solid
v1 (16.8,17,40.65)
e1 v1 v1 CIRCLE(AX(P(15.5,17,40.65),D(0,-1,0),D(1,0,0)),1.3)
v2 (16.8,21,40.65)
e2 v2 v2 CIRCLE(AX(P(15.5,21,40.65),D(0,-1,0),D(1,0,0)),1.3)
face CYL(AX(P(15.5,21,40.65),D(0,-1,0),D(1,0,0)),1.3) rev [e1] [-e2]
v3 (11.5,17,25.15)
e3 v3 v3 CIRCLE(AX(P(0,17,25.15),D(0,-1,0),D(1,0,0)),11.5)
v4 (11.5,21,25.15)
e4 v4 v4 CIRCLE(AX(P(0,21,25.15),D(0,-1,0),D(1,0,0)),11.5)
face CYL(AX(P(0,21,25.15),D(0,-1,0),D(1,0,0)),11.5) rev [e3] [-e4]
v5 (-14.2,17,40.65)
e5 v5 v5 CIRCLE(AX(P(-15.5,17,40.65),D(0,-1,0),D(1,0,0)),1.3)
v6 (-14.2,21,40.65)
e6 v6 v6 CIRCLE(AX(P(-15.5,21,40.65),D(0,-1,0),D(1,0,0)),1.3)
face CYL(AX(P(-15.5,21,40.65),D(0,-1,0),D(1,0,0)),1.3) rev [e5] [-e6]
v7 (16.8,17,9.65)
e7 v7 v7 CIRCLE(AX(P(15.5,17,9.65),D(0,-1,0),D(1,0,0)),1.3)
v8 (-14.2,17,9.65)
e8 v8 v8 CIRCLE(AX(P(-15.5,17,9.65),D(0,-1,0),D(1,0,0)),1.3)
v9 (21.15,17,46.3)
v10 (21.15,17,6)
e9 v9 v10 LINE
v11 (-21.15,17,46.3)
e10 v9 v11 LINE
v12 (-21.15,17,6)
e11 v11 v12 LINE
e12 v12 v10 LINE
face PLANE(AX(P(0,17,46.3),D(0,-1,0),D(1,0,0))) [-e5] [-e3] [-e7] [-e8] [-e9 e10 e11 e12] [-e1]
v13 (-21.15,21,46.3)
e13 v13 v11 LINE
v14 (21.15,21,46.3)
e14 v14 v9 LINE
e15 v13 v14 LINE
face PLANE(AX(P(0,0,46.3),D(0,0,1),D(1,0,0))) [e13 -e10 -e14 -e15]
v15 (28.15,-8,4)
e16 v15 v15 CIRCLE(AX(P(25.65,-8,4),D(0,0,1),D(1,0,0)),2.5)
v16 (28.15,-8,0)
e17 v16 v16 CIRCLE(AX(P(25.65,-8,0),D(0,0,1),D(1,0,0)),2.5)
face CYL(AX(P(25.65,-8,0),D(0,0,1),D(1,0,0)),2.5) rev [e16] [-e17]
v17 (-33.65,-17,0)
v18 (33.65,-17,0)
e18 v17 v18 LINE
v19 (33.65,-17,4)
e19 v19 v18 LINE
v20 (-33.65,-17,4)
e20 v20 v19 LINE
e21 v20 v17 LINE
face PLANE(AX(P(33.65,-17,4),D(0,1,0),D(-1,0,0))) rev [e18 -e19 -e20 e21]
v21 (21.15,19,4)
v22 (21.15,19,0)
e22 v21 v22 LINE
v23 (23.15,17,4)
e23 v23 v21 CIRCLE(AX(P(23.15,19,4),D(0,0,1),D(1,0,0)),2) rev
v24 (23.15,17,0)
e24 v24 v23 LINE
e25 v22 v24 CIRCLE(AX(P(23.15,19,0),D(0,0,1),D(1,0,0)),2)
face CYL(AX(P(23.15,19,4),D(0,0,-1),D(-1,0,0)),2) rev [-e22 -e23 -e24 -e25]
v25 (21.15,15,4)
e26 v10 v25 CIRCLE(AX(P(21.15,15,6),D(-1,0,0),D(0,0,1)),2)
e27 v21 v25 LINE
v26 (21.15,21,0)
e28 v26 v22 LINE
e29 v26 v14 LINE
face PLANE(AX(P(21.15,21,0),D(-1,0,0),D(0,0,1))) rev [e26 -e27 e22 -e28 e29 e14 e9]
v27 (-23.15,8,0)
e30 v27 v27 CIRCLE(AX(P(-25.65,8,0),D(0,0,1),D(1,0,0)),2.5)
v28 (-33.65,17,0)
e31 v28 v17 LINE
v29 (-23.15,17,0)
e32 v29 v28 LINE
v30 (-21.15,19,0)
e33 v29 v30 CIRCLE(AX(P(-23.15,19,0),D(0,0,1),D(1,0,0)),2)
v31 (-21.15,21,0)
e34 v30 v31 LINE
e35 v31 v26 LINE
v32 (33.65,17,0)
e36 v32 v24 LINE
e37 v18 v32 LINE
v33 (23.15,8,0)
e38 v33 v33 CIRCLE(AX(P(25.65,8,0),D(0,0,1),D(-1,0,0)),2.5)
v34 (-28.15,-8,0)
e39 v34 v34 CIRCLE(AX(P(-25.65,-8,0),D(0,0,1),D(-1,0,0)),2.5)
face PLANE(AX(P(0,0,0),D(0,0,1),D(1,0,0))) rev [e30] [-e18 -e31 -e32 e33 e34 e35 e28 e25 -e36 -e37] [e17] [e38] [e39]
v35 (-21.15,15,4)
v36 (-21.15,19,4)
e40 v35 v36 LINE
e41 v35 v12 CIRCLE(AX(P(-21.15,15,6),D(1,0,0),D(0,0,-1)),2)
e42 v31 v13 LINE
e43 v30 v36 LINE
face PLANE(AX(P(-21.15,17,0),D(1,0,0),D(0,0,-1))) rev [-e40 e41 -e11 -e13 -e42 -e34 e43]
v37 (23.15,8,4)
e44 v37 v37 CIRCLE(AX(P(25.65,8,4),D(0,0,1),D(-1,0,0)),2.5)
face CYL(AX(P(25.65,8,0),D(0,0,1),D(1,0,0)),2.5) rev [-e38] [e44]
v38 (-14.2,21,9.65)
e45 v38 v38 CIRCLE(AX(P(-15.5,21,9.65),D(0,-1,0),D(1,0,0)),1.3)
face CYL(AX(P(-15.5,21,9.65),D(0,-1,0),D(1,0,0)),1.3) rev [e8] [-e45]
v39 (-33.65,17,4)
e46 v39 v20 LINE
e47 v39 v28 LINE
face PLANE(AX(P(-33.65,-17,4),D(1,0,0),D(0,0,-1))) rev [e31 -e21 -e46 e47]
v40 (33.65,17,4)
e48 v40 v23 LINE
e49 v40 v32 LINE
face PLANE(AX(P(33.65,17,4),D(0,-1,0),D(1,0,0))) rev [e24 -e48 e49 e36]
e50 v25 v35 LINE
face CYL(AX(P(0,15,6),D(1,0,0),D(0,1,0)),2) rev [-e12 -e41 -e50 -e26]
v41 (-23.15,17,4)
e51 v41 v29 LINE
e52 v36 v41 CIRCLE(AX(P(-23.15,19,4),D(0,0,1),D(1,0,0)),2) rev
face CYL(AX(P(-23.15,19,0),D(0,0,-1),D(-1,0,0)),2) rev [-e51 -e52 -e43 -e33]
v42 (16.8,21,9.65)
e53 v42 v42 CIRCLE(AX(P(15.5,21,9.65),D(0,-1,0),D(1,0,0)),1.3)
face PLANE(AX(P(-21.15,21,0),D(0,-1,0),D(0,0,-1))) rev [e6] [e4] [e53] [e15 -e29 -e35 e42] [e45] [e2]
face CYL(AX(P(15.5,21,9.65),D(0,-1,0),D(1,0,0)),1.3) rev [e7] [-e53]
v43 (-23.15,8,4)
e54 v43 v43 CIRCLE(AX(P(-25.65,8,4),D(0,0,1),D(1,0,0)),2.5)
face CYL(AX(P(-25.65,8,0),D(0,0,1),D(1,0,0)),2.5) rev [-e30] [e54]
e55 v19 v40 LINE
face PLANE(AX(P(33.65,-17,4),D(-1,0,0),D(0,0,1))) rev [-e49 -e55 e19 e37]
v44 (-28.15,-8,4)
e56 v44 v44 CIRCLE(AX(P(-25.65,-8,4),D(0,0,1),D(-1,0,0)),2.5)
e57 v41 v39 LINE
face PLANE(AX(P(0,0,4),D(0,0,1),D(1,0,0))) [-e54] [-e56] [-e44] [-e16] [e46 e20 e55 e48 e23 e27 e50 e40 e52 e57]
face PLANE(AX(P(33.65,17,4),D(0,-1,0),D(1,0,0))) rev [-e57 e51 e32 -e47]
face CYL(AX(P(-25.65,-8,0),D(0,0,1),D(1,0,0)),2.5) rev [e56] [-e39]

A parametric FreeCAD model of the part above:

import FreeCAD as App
import Part
import Sketcher
Q = App.Units.Quantity


def edges_at(feature, points):
    """Names of the edges that pass closest to the given points."""
    edges = feature.Shape.Edges
    near = lambda p: min(range(len(edges)), key=lambda i: edges[i].distToShape(Part.Vertex(*p))[0])
    return sorted({f"Edge{near(p) + 1}" for p in points})


def add_polygon(sketch, points):
    """Adds a closed chain of lines whose ends are joined by coincident constraints."""
    first, n = sketch.GeometryCount, len(points)
    for a, b in zip(points, points[1:] + points[:1]):
        sketch.addGeometry(Part.LineSegment(App.Vector(*a, 0), App.Vector(*b, 0)), False)
    for i in range(n):
        sketch.addConstraint(Sketcher.Constraint("Coincident", first + i, 2, first + (i + 1) % n, 1))

doc = App.newDocument("Part")
body = doc.addObject("PartDesign::Body", "Body")

# Sketch on XY plane
sketch1 = body.newObject("Sketcher::SketchObject", "Sketch")
sketch1.AttachmentSupport = (doc.getObject("XY_Plane"), [""])
sketch1.MapMode = "FlatFace"
add_polygon(sketch1, [(-34, 17), (-34, -17), (34, -17), (34, 17)])  # lines 0-3
sketch1.addConstraint([
    Sketcher.Constraint("Vertical", 0),
    Sketcher.Constraint("Horizontal", 1),
    Sketcher.Constraint("Vertical", 2),
    Sketcher.Constraint("Horizontal", 3),
    Sketcher.Constraint("Symmetric", 0, 2, 2, 2, -1, 1),
    Sketcher.Constraint("DistanceY", 0, 2, 0, 1, Q("34 mm")),
    Sketcher.Constraint("DistanceX", 1, 1, 1, 2, Q("67.3 mm")),
])
pad1 = body.newObject("PartDesign::Pad", "Pad")
pad1.Profile = sketch1
pad1.Length = 4
body2 = doc.addObject("PartDesign::Body", "Body001")

# Sketch on XY plane
sketch2 = body2.newObject("Sketcher::SketchObject", "Sketch001")
sketch2.AttachmentSupport = (doc.getObject("XY_Plane001"), [""])
sketch2.MapMode = "FlatFace"
sketch2.AttachmentOffset = App.Placement(App.Vector(0, 0, 4), App.Rotation())
add_polygon(sketch2, [(-21.1, 21), (-21.1, 17), (21.1, 17), (21.1, 21)])  # lines 0-3
sketch2.addConstraint([
    Sketcher.Constraint("Vertical", 0),
    Sketcher.Constraint("Horizontal", 1),
    Sketcher.Constraint("Vertical", 2),
    Sketcher.Constraint("Horizontal", 3),
    Sketcher.Constraint("DistanceY", 0, 2, 0, 1, Q("4 mm")),
    Sketcher.Constraint("DistanceX", 1, 1, 1, 2, Q("42.3 mm")),
    Sketcher.Constraint("DistanceY", -1, 1, 0, 2, Q("17 mm")),
    Sketcher.Constraint("DistanceX", 0, 2, -1, 1, Q("21.15 mm")),
])
pad2 = body2.newObject("PartDesign::Pad", "Pad001")
pad2.Profile = sketch2
pad2.Length = 42.3
body.AllowCompound = True
doc.recompute()

boolean = body.newObject("PartDesign::Boolean", "Boolean")
boolean.Type = "Fuse"
boolean.addObjects([body2])

# Sketch on XY plane
sketch3 = body.newObject("Sketcher::SketchObject", "Sketch002")
sketch3.AttachmentSupport = (doc.getObject("XY_Plane"), [""])
sketch3.MapMode = "FlatFace"
sketch3.AttachmentOffset = App.Placement(App.Vector(0, 0, 4), App.Rotation())
add_polygon(sketch3, [(21.1, 21), (21.1, 17), (-21.1, 17), (-21.1, 21)])  # lines 0-3
sketch3.addConstraint([
    Sketcher.Constraint("Vertical", 0),
    Sketcher.Constraint("Horizontal", 1),
    Sketcher.Constraint("Vertical", 2),
    Sketcher.Constraint("Horizontal", 3),
    Sketcher.Constraint("DistanceY", 0, 2, 0, 1, Q("4 mm")),
    Sketcher.Constraint("DistanceX", 1, 2, 1, 1, Q("42.3 mm")),
    Sketcher.Constraint("DistanceY", -1, 1, 0, 2, Q("17 mm")),
    Sketcher.Constraint("DistanceX", -1, 1, 0, 2, Q("21.15 mm")),
])
pad3 = body.newObject("PartDesign::Pad", "Pad002")
pad3.Profile = sketch3
pad3.Length = 4
pad3.Reversed = True
doc.recompute()

fillet = body.newObject("PartDesign::Fillet", "Fillet")
fillet.Base = (pad3, edges_at(pad3, [(0, 17, 4)]))
fillet.Radius = 2
doc.recompute()

fillet2 = body.newObject("PartDesign::Fillet", "Fillet001")
fillet2.Base = (fillet, edges_at(fillet, [(-21.15, 17, 2), (21.15, 17, 2)]))
fillet2.Radius = 2

# Sketch on XZ plane
sketch4 = body.newObject("Sketcher::SketchObject", "Sketch003")
sketch4.AttachmentSupport = (doc.getObject("XZ_Plane"), [""])
sketch4.MapMode = "FlatFace"
sketch4.AttachmentOffset = App.Placement(App.Vector(0, 0, -17), App.Rotation())
sketch4.addGeometry([
    Part.Circle(App.Vector(-15.5, 40.6, 0), App.Vector(0, 0, 1), 1.3),  # 0
    Part.Circle(App.Vector(15.5, 40.6, 0), App.Vector(0, 0, 1), 1.3),  # 1
    Part.Circle(App.Vector(-15.5, 9.7, 0), App.Vector(0, 0, 1), 1.3),  # 2
    Part.Circle(App.Vector(15.5, 9.7, 0), App.Vector(0, 0, 1), 1.3),  # 3
    Part.Circle(App.Vector(0, 25.1, 0), App.Vector(0, 0, 1), 11.5),  # 4
], False)
sketch4.addConstraint([
    Sketcher.Constraint("Equal", 0, 1),
    Sketcher.Constraint("Equal", 1, 2),
    Sketcher.Constraint("Equal", 2, 3),
    Sketcher.Constraint("Symmetric", 0, 3, 1, 3, -2),
    Sketcher.Constraint("Symmetric", 2, 3, 3, 3, -2),
    Sketcher.Constraint("PointOnObject", 4, 3, -2),
    Sketcher.Constraint("Vertical", 0, 3, 2, 3),
    Sketcher.Constraint("Diameter", 4, Q("23 mm")),
    Sketcher.Constraint("Diameter", 0, Q("2.6 mm")),
    Sketcher.Constraint("DistanceX", 0, 3, 1, 3, Q("31 mm")),
    Sketcher.Constraint("DistanceY", 2, 3, 0, 3, Q("31 mm")),
    Sketcher.Constraint("DistanceY", 4, 3, 0, 3, Q("15.5 mm")),
    Sketcher.Constraint("DistanceY", -1, 1, 0, 3, Q("40.65 mm")),
])
pocket1 = body.newObject("PartDesign::Pocket", "Pocket")
pocket1.Profile = sketch4
pocket1.Length = 4

# Sketch on XY plane
sketch5 = body.newObject("Sketcher::SketchObject", "Sketch004")
sketch5.AttachmentSupport = (doc.getObject("XY_Plane"), [""])
sketch5.MapMode = "FlatFace"
sketch5.AttachmentOffset = App.Placement(App.Vector(0, 0, 4), App.Rotation())
sketch5.addGeometry([
    Part.Circle(App.Vector(-25.6, 8, 0), App.Vector(0, 0, 1), 2.5),
    Part.Circle(App.Vector(-25.6, -8, 0), App.Vector(0, 0, 1), 2.5),
    Part.Circle(App.Vector(25.6, 8, 0), App.Vector(0, 0, 1), 2.5),
    Part.Circle(App.Vector(25.6, -8, 0), App.Vector(0, 0, 1), 2.5),
], False)
sketch5.addConstraint([
    Sketcher.Constraint("Equal", 0, 1),
    Sketcher.Constraint("Equal", 1, 2),
    Sketcher.Constraint("Equal", 2, 3),
    Sketcher.Constraint("Symmetric", 1, 3, 2, 3, -1, 1),
    Sketcher.Constraint("Symmetric", 0, 3, 3, 3, -1, 1),
    Sketcher.Constraint("Symmetric", 0, 3, 2, 3, -2),
    Sketcher.Constraint("Diameter", 0, Q("5 mm")),
    Sketcher.Constraint("DistanceY", -1, 1, 0, 3, Q("8 mm")),
    Sketcher.Constraint("DistanceX", 0, 3, 2, 3, Q("51.3 mm")),
])
pocket2 = body.newObject("PartDesign::Pocket", "Pocket001")
pocket2.Profile = sketch5
pocket2.Length = 4

doc.recompute()
